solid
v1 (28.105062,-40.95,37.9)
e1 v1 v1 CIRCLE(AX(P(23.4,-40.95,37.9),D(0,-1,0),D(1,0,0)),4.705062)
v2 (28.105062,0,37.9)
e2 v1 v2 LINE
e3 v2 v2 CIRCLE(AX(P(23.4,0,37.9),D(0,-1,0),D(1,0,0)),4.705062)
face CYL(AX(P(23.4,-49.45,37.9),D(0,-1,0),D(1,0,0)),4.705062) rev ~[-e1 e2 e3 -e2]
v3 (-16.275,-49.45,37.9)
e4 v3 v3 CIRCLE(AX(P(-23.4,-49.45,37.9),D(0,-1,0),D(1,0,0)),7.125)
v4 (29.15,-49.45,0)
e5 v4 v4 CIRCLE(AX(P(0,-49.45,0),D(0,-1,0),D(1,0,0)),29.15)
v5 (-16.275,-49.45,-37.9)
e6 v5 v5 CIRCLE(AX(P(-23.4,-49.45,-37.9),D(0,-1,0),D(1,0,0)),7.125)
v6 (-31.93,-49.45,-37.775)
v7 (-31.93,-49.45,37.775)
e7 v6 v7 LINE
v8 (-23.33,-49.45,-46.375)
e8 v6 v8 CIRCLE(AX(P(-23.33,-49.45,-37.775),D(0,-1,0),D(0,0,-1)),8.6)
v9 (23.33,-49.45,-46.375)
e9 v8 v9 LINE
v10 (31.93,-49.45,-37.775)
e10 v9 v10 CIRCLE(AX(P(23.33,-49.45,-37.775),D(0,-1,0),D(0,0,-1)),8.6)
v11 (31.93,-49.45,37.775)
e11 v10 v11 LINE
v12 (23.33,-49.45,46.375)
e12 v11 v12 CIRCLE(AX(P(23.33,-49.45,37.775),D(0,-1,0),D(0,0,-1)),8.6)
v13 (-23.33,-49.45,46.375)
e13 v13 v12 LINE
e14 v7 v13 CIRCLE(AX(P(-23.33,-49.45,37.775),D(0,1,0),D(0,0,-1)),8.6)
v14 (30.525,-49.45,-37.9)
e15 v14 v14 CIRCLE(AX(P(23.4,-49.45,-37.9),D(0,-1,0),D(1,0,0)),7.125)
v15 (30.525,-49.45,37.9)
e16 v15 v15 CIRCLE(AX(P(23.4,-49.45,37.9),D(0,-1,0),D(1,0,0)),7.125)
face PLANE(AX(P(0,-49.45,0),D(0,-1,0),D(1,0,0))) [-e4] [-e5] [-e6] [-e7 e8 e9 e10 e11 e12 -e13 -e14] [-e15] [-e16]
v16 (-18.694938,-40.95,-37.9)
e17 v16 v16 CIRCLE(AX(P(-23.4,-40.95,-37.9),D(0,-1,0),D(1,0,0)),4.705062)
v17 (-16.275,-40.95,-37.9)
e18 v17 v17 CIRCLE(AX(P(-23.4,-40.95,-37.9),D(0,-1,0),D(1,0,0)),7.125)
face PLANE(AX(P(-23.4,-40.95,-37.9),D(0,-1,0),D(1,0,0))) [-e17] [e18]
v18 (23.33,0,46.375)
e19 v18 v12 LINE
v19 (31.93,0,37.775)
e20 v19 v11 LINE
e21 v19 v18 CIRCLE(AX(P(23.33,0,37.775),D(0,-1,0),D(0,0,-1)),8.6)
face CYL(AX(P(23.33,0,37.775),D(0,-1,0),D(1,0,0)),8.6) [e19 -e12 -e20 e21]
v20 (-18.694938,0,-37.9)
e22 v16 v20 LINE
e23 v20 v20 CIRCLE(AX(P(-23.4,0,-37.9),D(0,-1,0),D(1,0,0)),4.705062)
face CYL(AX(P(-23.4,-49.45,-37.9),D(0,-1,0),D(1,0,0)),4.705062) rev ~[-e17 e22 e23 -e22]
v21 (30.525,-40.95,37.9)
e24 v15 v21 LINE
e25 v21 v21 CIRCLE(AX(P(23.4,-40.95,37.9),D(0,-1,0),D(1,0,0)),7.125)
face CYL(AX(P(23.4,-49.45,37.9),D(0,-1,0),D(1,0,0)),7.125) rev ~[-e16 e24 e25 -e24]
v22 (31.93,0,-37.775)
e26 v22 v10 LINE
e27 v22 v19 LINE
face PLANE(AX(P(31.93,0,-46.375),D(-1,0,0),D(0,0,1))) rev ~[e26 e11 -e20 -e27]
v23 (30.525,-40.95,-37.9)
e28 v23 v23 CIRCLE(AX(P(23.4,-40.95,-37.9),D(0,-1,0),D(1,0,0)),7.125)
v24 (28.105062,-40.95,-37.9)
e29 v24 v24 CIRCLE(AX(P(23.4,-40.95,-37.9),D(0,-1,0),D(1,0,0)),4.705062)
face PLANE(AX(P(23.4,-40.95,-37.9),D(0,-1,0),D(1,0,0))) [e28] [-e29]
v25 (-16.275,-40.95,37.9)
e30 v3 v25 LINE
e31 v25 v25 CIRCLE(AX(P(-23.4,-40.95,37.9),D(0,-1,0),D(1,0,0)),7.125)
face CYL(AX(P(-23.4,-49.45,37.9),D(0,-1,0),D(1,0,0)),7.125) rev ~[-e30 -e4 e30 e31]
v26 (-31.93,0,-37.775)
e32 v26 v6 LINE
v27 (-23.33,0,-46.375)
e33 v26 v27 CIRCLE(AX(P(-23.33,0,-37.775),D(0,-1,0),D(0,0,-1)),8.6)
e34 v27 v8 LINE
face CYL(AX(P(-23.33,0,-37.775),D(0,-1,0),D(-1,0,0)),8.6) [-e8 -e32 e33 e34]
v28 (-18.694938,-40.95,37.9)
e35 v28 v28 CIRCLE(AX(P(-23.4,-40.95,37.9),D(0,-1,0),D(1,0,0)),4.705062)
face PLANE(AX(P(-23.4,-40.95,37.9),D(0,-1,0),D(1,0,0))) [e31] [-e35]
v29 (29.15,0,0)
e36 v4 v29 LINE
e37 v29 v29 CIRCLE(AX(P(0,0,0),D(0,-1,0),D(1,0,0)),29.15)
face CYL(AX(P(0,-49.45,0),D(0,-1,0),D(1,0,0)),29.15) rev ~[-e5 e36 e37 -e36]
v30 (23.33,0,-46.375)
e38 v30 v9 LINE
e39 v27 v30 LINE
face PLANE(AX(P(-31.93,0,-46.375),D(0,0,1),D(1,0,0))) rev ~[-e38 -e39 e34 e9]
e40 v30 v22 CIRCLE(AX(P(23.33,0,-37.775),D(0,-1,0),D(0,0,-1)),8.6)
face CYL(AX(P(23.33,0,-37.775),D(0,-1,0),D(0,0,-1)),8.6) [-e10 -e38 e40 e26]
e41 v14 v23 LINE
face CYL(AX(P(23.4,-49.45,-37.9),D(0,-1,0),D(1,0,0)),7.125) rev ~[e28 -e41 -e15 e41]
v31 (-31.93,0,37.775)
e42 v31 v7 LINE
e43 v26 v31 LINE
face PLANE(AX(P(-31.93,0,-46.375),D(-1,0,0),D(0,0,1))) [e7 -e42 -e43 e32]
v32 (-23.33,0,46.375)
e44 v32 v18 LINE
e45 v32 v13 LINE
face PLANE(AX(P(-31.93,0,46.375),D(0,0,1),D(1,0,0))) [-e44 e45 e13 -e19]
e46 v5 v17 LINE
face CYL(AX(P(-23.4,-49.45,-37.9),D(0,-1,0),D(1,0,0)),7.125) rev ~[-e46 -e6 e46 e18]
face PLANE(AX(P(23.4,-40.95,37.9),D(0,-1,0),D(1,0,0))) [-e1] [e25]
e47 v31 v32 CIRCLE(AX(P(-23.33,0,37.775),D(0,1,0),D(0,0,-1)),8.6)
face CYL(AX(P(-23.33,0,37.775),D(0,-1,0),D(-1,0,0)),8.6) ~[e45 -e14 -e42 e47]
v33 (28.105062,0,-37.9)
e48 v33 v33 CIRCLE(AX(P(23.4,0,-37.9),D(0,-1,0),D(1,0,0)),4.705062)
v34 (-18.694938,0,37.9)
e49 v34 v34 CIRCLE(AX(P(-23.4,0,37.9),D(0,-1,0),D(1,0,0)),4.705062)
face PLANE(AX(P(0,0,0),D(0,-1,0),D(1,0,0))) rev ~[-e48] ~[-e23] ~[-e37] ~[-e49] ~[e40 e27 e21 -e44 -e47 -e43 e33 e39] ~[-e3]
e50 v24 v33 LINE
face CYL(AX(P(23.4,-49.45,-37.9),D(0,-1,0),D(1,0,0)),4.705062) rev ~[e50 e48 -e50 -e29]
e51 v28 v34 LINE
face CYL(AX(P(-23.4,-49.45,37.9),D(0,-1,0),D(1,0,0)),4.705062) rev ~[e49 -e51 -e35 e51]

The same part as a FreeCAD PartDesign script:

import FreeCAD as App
import Part
import Sketcher


def edges_at(feature, points):
    """Names of the edges that pass closest to the given points."""
    edges = feature.Shape.Edges
    near = lambda p: min(range(len(edges)), key=lambda i: edges[i].distToShape(Part.Vertex(*p))[0])
    return sorted({f"Edge{near(p) + 1}" for p in points})


def add_polygon(sketch, points):
    """Adds a closed chain of lines whose ends are joined by coincident constraints."""
    first, n = sketch.GeometryCount, len(points)
    for a, b in zip(points, points[1:] + points[:1]):
        sketch.addGeometry(Part.LineSegment(App.Vector(*a, 0), App.Vector(*b, 0)), False)
    for i in range(n):
        sketch.addConstraint(Sketcher.Constraint("Coincident", first + i, 2, first + (i + 1) % n, 1))

doc = App.newDocument("Part")
params = doc.addObject("Spreadsheet::Sheet", "Params")
for row, (alias, value) in enumerate([
    ("sketch1_width", "63.86 mm"),
    ("sketch1_height", "92.75 mm"),
    ("pad1_length", "49.45 mm"),
    ("fillet_radius", "8.6 mm"),
    ("pocket1_length", "54.1 mm"),
    ("sketch3_diameter", "14.25 mm"),
    ("pocket2_length", "8.5 mm"),
    ("sketch4_diameter", "58.3 mm"),
    ("pocket3_length", "69.1 mm"),
], start=1):
    params.set(f"A{row}", alias)
    params.set(f"B{row}", "=" + value)
    params.setAlias(f"B{row}", alias)

body = doc.addObject("PartDesign::Body", "Body")

sketch1 = doc.addObject("Sketcher::SketchObject", "Sketch")
body.addObject(sketch1)
sketch1.AttachmentSupport = (doc.XZ_Plane, [""])
sketch1.MapMode = "FlatFace"
add_polygon(sketch1, [(-31.93, 46.375), (-31.93, -46.375), (31.93, -46.375), (31.93, 46.375)])
sketch1.addConstraint([
    Sketcher.Constraint("Vertical", 0),
    Sketcher.Constraint("Horizontal", 1),
    Sketcher.Constraint("Vertical", 2),
    Sketcher.Constraint("Horizontal", 3),
    Sketcher.Constraint("Symmetric", 0, 2, 2, 2, -1, 1),
    Sketcher.Constraint("DistanceX", 1, 1, 1, 2, 63.86),
    Sketcher.Constraint("DistanceY", 0, 2, 0, 1, 92.75),
])
sketch1.setExpression("Constraints[9]", "Params.sketch1_width")
sketch1.setExpression("Constraints[10]", "Params.sketch1_height")
pad1 = doc.addObject("PartDesign::Pad", "Pad")
body.addObject(pad1)
pad1.Profile = sketch1
pad1.setExpression("Length", "Params.pad1_length")
doc.recompute()

fillet = doc.addObject("PartDesign::Fillet", "Fillet")
body.addObject(fillet)
fillet.Base = (pad1, edges_at(pad1, [
    (31.93, -24.725, 46.375),
    (-31.93, -24.725, 46.375),
    (-31.93, -24.725, -46.375),
    (31.93, -24.725, -46.375),
]))
fillet.setExpression("Radius", "Params.fillet_radius")

sketch2 = doc.addObject("Sketcher::SketchObject", "Sketch001")
body.addObject(sketch2)
sketch2.AttachmentSupport = (doc.XZ_Plane, [""])
sketch2.MapMode = "FlatFace"
sketch2.AttachmentOffset = App.Placement(App.Vector(0, 0, 49.45), App.Rotation())
sketch2.addGeometry([
    Part.Circle(App.Vector(-23.4, 37.9, 0), App.Vector(0, 0, 1), 4.705062),
    Part.Circle(App.Vector(23.4, 37.9, 0), App.Vector(0, 0, 1), 4.705062),
    Part.Circle(App.Vector(-23.4, -37.9, 0), App.Vector(0, 0, 1), 4.705062),
    Part.Circle(App.Vector(23.4, -37.9, 0), App.Vector(0, 0, 1), 4.705062),
], False)
sketch2.addConstraint([
    Sketcher.Constraint("Equal", 0, 1),
    Sketcher.Constraint("Equal", 1, 2),
    Sketcher.Constraint("Equal", 2, 3),
    Sketcher.Constraint("Symmetric", 1, 3, 2, 3, -1, 1),
    Sketcher.Constraint("Symmetric", 0, 3, 3, 3, -1, 1),
    Sketcher.Constraint("Symmetric", 0, 3, 1, 3, -2),
    Sketcher.Constraint("DistanceX", 0, 3, -1, 1, 23.4),
    Sketcher.Constraint("DistanceY", -1, 1, 0, 3, 37.9),
    Sketcher.Constraint("Diameter", 0, 9.410124),
])
pocket1 = doc.addObject("PartDesign::Pocket", "Pocket")
body.addObject(pocket1)
pocket1.Profile = sketch2
pocket1.setExpression("Length", "Params.pocket1_length")

sketch3 = doc.addObject("Sketcher::SketchObject", "Sketch002")
body.addObject(sketch3)
sketch3.AttachmentSupport = (doc.XZ_Plane, [""])
sketch3.MapMode = "FlatFace"
sketch3.AttachmentOffset = App.Placement(App.Vector(0, 0, 49.45), App.Rotation())
sketch3.addGeometry([
    Part.Circle(App.Vector(-23.4, 37.9, 0), App.Vector(0, 0, 1), 7.125),
    Part.Circle(App.Vector(23.4, 37.9, 0), App.Vector(0, 0, 1), 7.125),
    Part.Circle(App.Vector(-23.4, -37.9, 0), App.Vector(0, 0, 1), 7.125),
    Part.Circle(App.Vector(23.4, -37.9, 0), App.Vector(0, 0, 1), 7.125),
], False)
sketch3.addConstraint([
    Sketcher.Constraint("Equal", 0, 1),
    Sketcher.Constraint("Equal", 1, 2),
    Sketcher.Constraint("Equal", 2, 3),
    Sketcher.Constraint("Symmetric", 1, 3, 2, 3, -1, 1),
    Sketcher.Constraint("Symmetric", 0, 3, 3, 3, -1, 1),
    Sketcher.Constraint("Symmetric", 0, 3, 1, 3, -2),
    Sketcher.Constraint("Diameter", 0, 14.25),
    Sketcher.Constraint("DistanceX", 0, 3, -1, 1, 23.4),
    Sketcher.Constraint("DistanceY", -1, 1, 0, 3, 37.9),
])
sketch3.setExpression("Constraints[6]", "Params.sketch3_diameter")
pocket2 = doc.addObject("PartDesign::Pocket", "Pocket001")
body.addObject(pocket2)
pocket2.Profile = sketch3
pocket2.setExpression("Length", "Params.pocket2_length")

sketch4 = doc.addObject("Sketcher::SketchObject", "Sketch003")
body.addObject(sketch4)
sketch4.AttachmentSupport = (doc.XZ_Plane, [""])
sketch4.MapMode = "FlatFace"
sketch4.AttachmentOffset = App.Placement(App.Vector(0, 0, 49.45), App.Rotation())
sketch4.addGeometry(Part.Circle(App.Vector(0, 0, 0), App.Vector(0, 0, 1), 29.15), False)
sketch4.addConstraint([
    Sketcher.Constraint("Coincident", 0, 3, -1, 1),
    Sketcher.Constraint("Diameter", 0, 58.3),
])
sketch4.setExpression("Constraints[1]", "Params.sketch4_diameter")
pocket3 = doc.addObject("PartDesign::Pocket", "Pocket002")
body.addObject(pocket3)
pocket3.Profile = sketch4
pocket3.setExpression("Length", "Params.pocket3_length")

doc.recompute()
